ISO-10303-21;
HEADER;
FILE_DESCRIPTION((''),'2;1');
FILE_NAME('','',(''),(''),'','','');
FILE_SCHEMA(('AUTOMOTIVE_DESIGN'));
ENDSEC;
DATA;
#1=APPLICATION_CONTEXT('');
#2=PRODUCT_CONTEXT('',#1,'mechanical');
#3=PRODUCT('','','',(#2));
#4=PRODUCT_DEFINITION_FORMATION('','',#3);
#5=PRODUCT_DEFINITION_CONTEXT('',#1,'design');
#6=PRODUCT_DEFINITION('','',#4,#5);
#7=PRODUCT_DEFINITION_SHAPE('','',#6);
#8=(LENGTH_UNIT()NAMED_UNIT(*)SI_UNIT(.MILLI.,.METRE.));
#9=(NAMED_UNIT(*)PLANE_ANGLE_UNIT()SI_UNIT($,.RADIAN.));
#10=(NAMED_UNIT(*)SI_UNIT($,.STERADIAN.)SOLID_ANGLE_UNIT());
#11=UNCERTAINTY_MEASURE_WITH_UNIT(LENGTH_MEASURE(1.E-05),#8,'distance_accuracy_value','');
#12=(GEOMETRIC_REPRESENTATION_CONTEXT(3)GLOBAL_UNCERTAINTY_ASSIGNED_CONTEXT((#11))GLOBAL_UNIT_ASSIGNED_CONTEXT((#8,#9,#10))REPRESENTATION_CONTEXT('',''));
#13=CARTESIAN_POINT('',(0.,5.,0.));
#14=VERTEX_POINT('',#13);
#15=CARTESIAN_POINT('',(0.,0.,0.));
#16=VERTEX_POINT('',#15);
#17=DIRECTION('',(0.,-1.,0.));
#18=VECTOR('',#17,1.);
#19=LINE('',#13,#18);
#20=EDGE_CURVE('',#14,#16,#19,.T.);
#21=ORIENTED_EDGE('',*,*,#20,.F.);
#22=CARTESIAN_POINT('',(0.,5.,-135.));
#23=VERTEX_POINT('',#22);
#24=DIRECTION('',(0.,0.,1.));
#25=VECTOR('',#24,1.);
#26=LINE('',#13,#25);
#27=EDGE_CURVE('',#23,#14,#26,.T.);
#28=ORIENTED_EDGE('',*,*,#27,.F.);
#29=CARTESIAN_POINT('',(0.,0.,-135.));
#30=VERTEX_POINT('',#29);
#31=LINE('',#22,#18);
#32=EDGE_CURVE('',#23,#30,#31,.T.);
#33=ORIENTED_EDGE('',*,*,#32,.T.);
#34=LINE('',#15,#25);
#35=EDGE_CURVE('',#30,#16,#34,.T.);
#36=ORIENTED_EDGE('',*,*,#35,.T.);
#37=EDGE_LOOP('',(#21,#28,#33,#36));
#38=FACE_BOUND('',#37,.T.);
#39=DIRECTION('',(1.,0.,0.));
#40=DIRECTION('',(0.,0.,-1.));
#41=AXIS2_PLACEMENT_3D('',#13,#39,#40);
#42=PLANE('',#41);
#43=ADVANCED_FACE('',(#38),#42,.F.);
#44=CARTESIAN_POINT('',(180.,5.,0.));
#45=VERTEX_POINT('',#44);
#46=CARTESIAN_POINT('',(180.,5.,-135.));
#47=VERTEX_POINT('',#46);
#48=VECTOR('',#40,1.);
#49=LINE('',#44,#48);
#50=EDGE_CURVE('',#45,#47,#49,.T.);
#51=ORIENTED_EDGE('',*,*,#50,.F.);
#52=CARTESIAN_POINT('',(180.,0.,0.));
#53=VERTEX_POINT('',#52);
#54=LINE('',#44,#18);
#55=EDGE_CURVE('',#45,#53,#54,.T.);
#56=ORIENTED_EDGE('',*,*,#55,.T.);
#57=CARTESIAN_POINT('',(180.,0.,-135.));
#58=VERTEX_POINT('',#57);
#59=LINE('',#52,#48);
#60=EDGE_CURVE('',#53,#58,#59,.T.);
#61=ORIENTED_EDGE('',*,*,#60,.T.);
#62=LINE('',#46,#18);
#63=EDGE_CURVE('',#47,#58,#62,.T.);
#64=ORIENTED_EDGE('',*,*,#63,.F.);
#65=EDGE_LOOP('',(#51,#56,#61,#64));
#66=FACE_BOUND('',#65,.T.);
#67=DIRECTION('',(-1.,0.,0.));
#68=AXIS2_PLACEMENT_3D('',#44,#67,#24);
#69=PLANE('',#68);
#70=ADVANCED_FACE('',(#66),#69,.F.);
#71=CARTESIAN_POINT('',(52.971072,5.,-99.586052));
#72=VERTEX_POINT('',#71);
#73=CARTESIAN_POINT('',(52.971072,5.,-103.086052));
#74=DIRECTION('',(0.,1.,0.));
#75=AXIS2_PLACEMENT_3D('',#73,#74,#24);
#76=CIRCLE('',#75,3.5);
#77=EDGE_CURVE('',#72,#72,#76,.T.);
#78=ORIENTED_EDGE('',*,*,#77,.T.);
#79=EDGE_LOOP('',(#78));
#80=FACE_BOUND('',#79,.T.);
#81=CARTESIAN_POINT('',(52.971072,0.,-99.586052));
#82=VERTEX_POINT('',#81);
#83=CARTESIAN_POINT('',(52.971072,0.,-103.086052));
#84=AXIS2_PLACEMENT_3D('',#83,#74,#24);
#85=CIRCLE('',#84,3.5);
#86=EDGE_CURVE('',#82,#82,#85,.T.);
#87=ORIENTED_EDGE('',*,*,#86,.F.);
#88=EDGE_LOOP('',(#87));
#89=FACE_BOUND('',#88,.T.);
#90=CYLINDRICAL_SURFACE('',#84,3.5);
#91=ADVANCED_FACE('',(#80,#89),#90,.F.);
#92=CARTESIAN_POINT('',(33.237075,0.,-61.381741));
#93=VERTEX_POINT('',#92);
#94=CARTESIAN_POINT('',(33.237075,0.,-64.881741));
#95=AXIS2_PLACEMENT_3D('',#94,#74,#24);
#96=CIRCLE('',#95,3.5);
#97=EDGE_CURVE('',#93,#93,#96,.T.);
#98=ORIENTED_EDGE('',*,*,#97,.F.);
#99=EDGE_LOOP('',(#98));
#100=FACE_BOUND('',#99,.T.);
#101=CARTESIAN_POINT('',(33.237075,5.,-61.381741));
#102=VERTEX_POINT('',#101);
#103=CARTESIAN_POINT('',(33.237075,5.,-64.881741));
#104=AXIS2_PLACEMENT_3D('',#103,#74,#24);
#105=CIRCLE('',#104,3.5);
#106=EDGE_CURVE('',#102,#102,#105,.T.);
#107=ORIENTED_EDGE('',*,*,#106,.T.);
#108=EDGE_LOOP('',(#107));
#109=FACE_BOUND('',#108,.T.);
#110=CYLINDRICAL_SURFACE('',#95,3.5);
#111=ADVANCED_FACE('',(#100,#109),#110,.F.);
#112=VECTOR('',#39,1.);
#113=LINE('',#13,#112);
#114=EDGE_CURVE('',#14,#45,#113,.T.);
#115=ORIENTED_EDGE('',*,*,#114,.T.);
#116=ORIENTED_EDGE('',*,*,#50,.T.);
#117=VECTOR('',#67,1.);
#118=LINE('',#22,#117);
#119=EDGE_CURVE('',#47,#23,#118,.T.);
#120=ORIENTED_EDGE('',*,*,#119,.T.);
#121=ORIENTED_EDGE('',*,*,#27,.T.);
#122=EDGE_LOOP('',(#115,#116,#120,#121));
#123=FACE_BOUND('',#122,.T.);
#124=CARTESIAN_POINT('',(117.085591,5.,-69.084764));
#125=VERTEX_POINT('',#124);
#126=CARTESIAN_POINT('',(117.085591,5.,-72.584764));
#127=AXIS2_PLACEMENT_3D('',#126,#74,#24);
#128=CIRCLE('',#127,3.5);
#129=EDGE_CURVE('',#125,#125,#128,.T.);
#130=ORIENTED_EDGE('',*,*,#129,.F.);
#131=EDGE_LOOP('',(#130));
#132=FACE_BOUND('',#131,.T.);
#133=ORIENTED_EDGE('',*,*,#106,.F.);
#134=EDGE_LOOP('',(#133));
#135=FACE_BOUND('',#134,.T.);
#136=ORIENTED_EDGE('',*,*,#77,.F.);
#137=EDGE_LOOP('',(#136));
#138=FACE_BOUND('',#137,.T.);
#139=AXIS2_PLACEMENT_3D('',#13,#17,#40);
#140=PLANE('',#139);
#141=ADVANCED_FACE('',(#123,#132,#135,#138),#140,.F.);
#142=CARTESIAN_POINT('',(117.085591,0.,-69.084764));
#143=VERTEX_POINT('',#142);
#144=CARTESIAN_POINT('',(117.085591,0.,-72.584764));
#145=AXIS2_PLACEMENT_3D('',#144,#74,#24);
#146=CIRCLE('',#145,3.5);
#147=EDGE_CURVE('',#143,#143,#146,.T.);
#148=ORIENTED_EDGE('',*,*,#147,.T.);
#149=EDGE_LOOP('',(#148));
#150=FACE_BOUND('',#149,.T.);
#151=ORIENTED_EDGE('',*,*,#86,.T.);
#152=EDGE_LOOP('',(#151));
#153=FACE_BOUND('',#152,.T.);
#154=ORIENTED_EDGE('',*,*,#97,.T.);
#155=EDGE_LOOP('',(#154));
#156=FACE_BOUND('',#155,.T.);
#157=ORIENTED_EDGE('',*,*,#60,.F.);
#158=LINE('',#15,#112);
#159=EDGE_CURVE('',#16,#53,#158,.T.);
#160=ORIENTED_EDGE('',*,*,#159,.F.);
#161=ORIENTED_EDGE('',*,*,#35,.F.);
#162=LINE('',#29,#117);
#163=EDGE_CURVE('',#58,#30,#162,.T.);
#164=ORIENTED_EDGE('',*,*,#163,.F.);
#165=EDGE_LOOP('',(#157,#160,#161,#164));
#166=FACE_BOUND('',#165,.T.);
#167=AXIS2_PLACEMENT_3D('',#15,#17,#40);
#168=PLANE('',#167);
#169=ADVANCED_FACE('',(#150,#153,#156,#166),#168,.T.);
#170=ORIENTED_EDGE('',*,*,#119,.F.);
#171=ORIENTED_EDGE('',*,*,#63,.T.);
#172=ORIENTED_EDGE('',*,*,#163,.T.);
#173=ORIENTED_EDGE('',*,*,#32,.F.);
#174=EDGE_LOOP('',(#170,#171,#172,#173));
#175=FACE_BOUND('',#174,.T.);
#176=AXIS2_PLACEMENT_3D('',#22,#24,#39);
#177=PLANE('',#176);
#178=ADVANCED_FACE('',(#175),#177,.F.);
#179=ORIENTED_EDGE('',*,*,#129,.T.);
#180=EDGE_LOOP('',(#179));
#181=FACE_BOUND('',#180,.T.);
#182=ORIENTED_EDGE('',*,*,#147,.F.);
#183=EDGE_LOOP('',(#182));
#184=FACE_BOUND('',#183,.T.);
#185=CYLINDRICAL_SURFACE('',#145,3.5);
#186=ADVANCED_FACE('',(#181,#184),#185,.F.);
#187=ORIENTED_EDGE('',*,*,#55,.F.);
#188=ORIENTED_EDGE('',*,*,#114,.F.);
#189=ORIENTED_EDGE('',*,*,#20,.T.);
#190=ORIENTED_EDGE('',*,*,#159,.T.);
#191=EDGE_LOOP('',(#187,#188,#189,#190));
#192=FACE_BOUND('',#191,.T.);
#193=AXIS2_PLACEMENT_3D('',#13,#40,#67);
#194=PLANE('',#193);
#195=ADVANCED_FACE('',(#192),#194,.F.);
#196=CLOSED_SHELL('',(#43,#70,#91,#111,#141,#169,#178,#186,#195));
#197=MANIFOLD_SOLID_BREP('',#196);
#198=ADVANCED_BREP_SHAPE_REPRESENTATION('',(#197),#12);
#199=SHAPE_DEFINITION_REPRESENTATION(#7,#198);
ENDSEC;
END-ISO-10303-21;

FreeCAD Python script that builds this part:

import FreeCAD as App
import Part
import Sketcher

V = App.Vector

doc = App.newDocument("Part")
body = doc.addObject("PartDesign::Body", "Body")

sketch1 = body.newObject("Sketcher::SketchObject", "Sketch")
sketch1.AttachmentSupport = (doc.getObject("XZ_Plane"), [""])
sketch1.MapMode = "FlatFace"
sketch1.addGeometry([
    Part.LineSegment(V(0, -135, 0), V(0, 0, 0)),
    Part.LineSegment(V(0, 0, 0), V(180, 0, 0)),
    Part.LineSegment(V(180, 0, 0), V(180, -135, 0)),
    Part.LineSegment(V(180, -135, 0), V(0, -135, 0)),
], False)
sketch1.addConstraint([
    Sketcher.Constraint("Coincident", 0, 2, 1, 1),
    Sketcher.Constraint("Coincident", 1, 2, 2, 1),
    Sketcher.Constraint("Coincident", 2, 2, 3, 1),
    Sketcher.Constraint("Coincident", 3, 2, 0, 1),
    Sketcher.Constraint("Vertical", 0),
    Sketcher.Constraint("Horizontal", 1),
    Sketcher.Constraint("Vertical", 2),
    Sketcher.Constraint("Horizontal", 3),
    Sketcher.Constraint("Coincident", 0, 2, -1, 1),
    Sketcher.Constraint("DistanceX", 1, 1, 1, 2, 180.0),
    Sketcher.Constraint("DistanceY", 0, 1, 0, 2, 135.0),
])
pad1 = body.newObject("PartDesign::Pad", "Pad")
pad1.Profile = sketch1
pad1.Length = 5
pad1.Reversed = True

sketch2 = body.newObject("Sketcher::SketchObject", "Sketch001")
sketch2.AttachmentSupport = (doc.getObject("XZ_Plane"), [""])
sketch2.MapMode = "FlatFace"
sketch2.AttachmentOffset = App.Placement(V(0, 0, -5), App.Rotation())
sketch2.addGeometry([
    Part.LineSegment(V(-23.506, -158.506, 0), V(-23.506, 23.506, 0)),
    Part.LineSegment(V(-23.506, 23.506, 0), V(203.506, 23.506, 0)),
    Part.LineSegment(V(203.506, 23.506, 0), V(203.506, -158.506, 0)),
    Part.LineSegment(V(203.506, -158.506, 0), V(-23.506, -158.506, 0)),
    Part.LineSegment(V(180, 0, 0), V(0, 0, 0)),
    Part.LineSegment(V(0, 0, 0), V(0, -135, 0)),
    Part.LineSegment(V(0, -135, 0), V(180, -135, 0)),
    Part.LineSegment(V(180, -135, 0), V(180, 0, 0)),
    Part.Circle(V(52.971072, -103.086052, 0), V(0, 0, 1), 3.5),
    Part.Circle(V(117.085591, -72.584764, 0), V(0, 0, 1), 3.5),
    Part.Circle(V(33.237075, -64.881741, 0), V(0, 0, 1), 3.5),
], False)
sketch2.addConstraint([
    Sketcher.Constraint("Coincident", 0, 2, 1, 1),
    Sketcher.Constraint("Coincident", 1, 2, 2, 1),
    Sketcher.Constraint("Coincident", 2, 2, 3, 1),
    Sketcher.Constraint("Coincident", 3, 2, 0, 1),
    Sketcher.Constraint("Coincident", 4, 2, 5, 1),
    Sketcher.Constraint("Coincident", 5, 2, 6, 1),
    Sketcher.Constraint("Coincident", 6, 2, 7, 1),
    Sketcher.Constraint("Coincident", 7, 2, 4, 1),
    Sketcher.Constraint("Vertical", 0),
    Sketcher.Constraint("Horizontal", 1),
    Sketcher.Constraint("Vertical", 2),
    Sketcher.Constraint("Horizontal", 3),
    Sketcher.Constraint("Horizontal", 4),
    Sketcher.Constraint("Vertical", 5),
    Sketcher.Constraint("Horizontal", 6),
    Sketcher.Constraint("Vertical", 7),
    Sketcher.Constraint("Coincident", 4, 2, -1, 1),
    Sketcher.Constraint("Equal", 8, 9),
    Sketcher.Constraint("Equal", 9, 10),
    Sketcher.Constraint("Diameter", 8, 7.0),
    Sketcher.Constraint("DistanceX", 4, 2, 4, 1, 180.0),
    Sketcher.Constraint("DistanceY", 5, 2, 5, 1, 135.0),
    Sketcher.Constraint("DistanceX", 1, 1, 1, 2, 227.012),
    Sketcher.Constraint("DistanceY", 0, 1, 0, 2, 182.012),
    Sketcher.Constraint("DistanceX", 0, 2, -1, 1, 23.506),
    Sketcher.Constraint("DistanceY", -1, 1, 0, 2, 23.506),
    Sketcher.Constraint("DistanceY", 8, 3, -1, 1, 103.086052),
    Sketcher.Constraint("DistanceX", -1, 1, 9, 3, 117.085591),
    Sketcher.Constraint("DistanceY", 10, 3, -1, 1, 64.881741),
    Sketcher.Constraint("DistanceX", 8, 3, 9, 3, 64.114518),
    Sketcher.Constraint("DistanceY", 9, 3, -1, 1, 72.584764),
    Sketcher.Constraint("DistanceX", -1, 1, 10, 3, 33.237075),
])
pocket1 = body.newObject("PartDesign::Pocket", "Pocket")
pocket1.Profile = sketch2
pocket1.Length = 226.055549
pocket1.Reversed = True

doc.recompute()
